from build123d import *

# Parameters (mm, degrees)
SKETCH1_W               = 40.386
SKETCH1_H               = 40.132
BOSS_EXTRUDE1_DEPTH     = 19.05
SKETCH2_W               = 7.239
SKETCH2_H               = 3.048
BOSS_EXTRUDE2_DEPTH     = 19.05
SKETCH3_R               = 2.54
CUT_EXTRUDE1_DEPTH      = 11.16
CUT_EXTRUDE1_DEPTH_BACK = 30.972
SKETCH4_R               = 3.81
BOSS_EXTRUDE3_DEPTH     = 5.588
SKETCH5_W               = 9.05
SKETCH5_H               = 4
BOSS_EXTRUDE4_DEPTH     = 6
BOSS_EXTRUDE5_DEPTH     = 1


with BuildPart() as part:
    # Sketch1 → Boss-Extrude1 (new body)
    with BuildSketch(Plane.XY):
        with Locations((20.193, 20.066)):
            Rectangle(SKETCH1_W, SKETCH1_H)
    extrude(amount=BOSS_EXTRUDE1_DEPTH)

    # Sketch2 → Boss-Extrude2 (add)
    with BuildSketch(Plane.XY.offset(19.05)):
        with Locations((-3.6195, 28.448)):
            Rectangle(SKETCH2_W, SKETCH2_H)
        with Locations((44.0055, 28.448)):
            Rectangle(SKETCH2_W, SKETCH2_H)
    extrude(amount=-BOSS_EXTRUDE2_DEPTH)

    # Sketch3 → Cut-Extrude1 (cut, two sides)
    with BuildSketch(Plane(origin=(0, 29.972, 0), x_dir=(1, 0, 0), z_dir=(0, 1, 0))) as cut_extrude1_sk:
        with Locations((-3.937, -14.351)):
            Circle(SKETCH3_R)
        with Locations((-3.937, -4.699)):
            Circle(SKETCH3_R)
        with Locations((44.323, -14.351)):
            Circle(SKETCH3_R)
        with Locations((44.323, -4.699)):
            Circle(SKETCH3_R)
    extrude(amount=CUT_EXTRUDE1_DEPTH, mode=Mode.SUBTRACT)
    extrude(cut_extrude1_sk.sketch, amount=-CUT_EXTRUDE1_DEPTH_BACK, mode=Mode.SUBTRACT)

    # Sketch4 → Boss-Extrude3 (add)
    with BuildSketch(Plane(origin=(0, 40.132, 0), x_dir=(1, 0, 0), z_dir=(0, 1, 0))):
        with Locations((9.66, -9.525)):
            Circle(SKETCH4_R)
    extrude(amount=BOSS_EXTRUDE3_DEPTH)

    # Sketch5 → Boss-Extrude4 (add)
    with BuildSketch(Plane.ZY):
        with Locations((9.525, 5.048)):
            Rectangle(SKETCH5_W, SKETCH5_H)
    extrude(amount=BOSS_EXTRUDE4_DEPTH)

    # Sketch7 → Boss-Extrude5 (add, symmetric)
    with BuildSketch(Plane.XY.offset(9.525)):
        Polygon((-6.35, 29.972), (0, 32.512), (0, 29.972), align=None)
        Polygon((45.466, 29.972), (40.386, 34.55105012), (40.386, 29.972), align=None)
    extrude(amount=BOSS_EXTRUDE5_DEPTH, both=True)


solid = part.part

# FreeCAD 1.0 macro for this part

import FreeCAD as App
import Part
import Sketcher
Q = App.Units.Quantity

doc = App.newDocument("Part")
body = doc.addObject("PartDesign::Body", "Body")

# Sketch on XY plane
sketch1 = doc.addObject("Sketcher::SketchObject", "Sketch")
body.addObject(sketch1)
sketch1.AttachmentSupport = (doc.XY_Plane, [""])
sketch1.MapMode = "FlatFace"
sketch1.addGeometry([
    Part.LineSegment(App.Vector(0, 40, 0), App.Vector(0, 0, 0)),
    Part.LineSegment(App.Vector(0, 0, 0), App.Vector(40, 0, 0)),
    Part.LineSegment(App.Vector(40, 0, 0), App.Vector(40, 40, 0)),
    Part.LineSegment(App.Vector(40, 40, 0), App.Vector(0, 40, 0)),
], False)
sketch1.addConstraint([
    Sketcher.Constraint("Coincident", 0, 2, 1, 1),
    Sketcher.Constraint("Coincident", 1, 2, 2, 1),
    Sketcher.Constraint("Coincident", 2, 2, 3, 1),
    Sketcher.Constraint("Coincident", 3, 2, 0, 1),
    Sketcher.Constraint("Vertical", 0),
    Sketcher.Constraint("Horizontal", 1),
    Sketcher.Constraint("Vertical", 2),
    Sketcher.Constraint("Horizontal", 3),
    Sketcher.Constraint("Coincident", 0, 2, -1, 1),
    Sketcher.Constraint("DistanceX", 1, 1, 1, 2, Q("1.59 in")),
    Sketcher.Constraint("DistanceY", 0, 2, 0, 1, Q("1.58 in")),
])
pad1 = doc.addObject("PartDesign::Pad", "Pad")
body.addObject(pad1)
pad1.Profile = sketch1
pad1.Length = Q("0.75 in")

# Sketch on XY plane
sketch2 = doc.addObject("Sketcher::SketchObject", "Sketch001")
body.addObject(sketch2)
sketch2.AttachmentSupport = (doc.XY_Plane, [""])
sketch2.MapMode = "FlatFace"
sketch2.AttachmentOffset = App.Placement(App.Vector(0, 0, 0.75 * 25.4), App.Rotation())
sketch2.addGeometry([
    Part.LineSegment(App.Vector(-7.2, 30, 0), App.Vector(-7.2, 26.9, 0)),  # 0
    Part.LineSegment(App.Vector(-7.2, 26.9, 0), App.Vector(0, 26.9, 0)),  # 1
    Part.LineSegment(App.Vector(0, 26.9, 0), App.Vector(0, 30, 0)),  # 2
    Part.LineSegment(App.Vector(0, 30, 0), App.Vector(-7.2, 30, 0)),  # 3
    Part.LineSegment(App.Vector(40.4, 30, 0), App.Vector(40.4, 26.9, 0)),  # 4
    Part.LineSegment(App.Vector(40.4, 26.9, 0), App.Vector(47.6, 26.9, 0)),  # 5
    Part.LineSegment(App.Vector(47.6, 26.9, 0), App.Vector(47.6, 30, 0)),  # 6
    Part.LineSegment(App.Vector(47.6, 30, 0), App.Vector(40.4, 30, 0)),  # 7
], False)
sketch2.addConstraint([
    Sketcher.Constraint("Coincident", 0, 2, 1, 1),
    Sketcher.Constraint("Coincident", 1, 2, 2, 1),
    Sketcher.Constraint("Coincident", 2, 2, 3, 1),
    Sketcher.Constraint("Coincident", 3, 2, 0, 1),
    Sketcher.Constraint("Coincident", 4, 2, 5, 1),
    Sketcher.Constraint("Coincident", 5, 2, 6, 1),
    Sketcher.Constraint("Coincident", 6, 2, 7, 1),
    Sketcher.Constraint("Coincident", 7, 2, 4, 1),
    Sketcher.Constraint("Vertical", 0),
    Sketcher.Constraint("Horizontal", 1),
    Sketcher.Constraint("Vertical", 2),
    Sketcher.Constraint("Horizontal", 3),
    Sketcher.Constraint("Vertical", 4),
    Sketcher.Constraint("Horizontal", 5),
    Sketcher.Constraint("Vertical", 6),
    Sketcher.Constraint("Horizontal", 7),
    Sketcher.Constraint("PointOnObject", 1, 2, -2),
    Sketcher.Constraint("Horizontal", 1, 2, 4, 2),
    Sketcher.Constraint("Horizontal", 3, 2, 6, 2),
    Sketcher.Constraint("Equal", 3, 5),
    Sketcher.Constraint("DistanceY", 0, 2, 0, 1, Q("0.12 in")),
    Sketcher.Constraint("DistanceX", 1, 1, 1, 2, Q("0.285 in")),
    Sketcher.Constraint("DistanceY", -1, 1, 0, 2, Q("1.06 in")),
    Sketcher.Constraint("DistanceX", -1, 1, 4, 2, Q("1.59 in")),
])
pad2 = doc.addObject("PartDesign::Pad", "Pad001")
body.addObject(pad2)
pad2.Profile = sketch2
pad2.Length = Q("0.75 in")
pad2.Reversed = True

# Sketch on XZ plane
sketch3 = doc.addObject("Sketcher::SketchObject", "Sketch002")
body.addObject(sketch3)
sketch3.AttachmentSupport = (doc.XZ_Plane, [""])
sketch3.MapMode = "FlatFace"
sketch3.AttachmentOffset = App.Placement(App.Vector(0, 0, -1.18 * 25.4), App.Rotation())
sketch3.addGeometry([
    Part.Circle(App.Vector(-3.9, 14.4, 0), App.Vector(0, 0, 1), 2.5),
    Part.Circle(App.Vector(-3.9, 4.7, 0), App.Vector(0, 0, 1), 2.5),
    Part.Circle(App.Vector(44.3, 14.4, 0), App.Vector(0, 0, 1), 2.5),
    Part.Circle(App.Vector(44.3, 4.7, 0), App.Vector(0, 0, 1), 2.5),
], False)
sketch3.addConstraint([
    Sketcher.Constraint("Equal", 0, 1),
    Sketcher.Constraint("Equal", 1, 2),
    Sketcher.Constraint("Equal", 2, 3),
    Sketcher.Constraint("Horizontal", 0, 3, 2, 3),
    Sketcher.Constraint("Horizontal", 1, 3, 3, 3),
    Sketcher.Constraint("Vertical", 0, 3, 1, 3),
    Sketcher.Constraint("Vertical", 2, 3, 3, 3),
    Sketcher.Constraint("Diameter", 0, Q("0.2 in")),
    Sketcher.Constraint("DistanceX", 0, 3, 2, 3, Q("1.9 in")),
    Sketcher.Constraint("DistanceY", 1, 3, 0, 3, Q("0.38 in")),
    Sketcher.Constraint("DistanceX", 0, 3, -1, 1, Q("0.155 in")),
    Sketcher.Constraint("DistanceY", -1, 1, 0, 3, Q("0.565 in")),
])
pocket1 = doc.addObject("PartDesign::Pocket", "Pocket")
body.addObject(pocket1)
pocket1.Profile = sketch3
pocket1.Type = "ThroughAll"
pocket1.Midplane = True

# Sketch on XZ plane
sketch4 = doc.addObject("Sketcher::SketchObject", "Sketch003")
body.addObject(sketch4)
sketch4.AttachmentSupport = (doc.XZ_Plane, [""])
sketch4.MapMode = "FlatFace"
sketch4.AttachmentOffset = App.Placement(App.Vector(0, 0, -1.58 * 25.4), App.Rotation())
sketch4.addGeometry(Part.Circle(App.Vector(9.7, 9.5, 0), App.Vector(0, 0, 1), 3.8), False)
sketch4.addConstraint([
    Sketcher.Constraint("Diameter", 0, Q("0.3 in")),
    Sketcher.Constraint("DistanceY", -1, 1, 0, 3, Q("0.375 in")),
    Sketcher.Constraint("DistanceX", -1, 1, 0, 3, Q("9.66 mm")),
])
pad3 = doc.addObject("PartDesign::Pad", "Pad002")
body.addObject(pad3)
pad3.Profile = sketch4
pad3.Length = Q("0.22 in")
pad3.Reversed = True

# Sketch on YZ plane
sketch5 = doc.addObject("Sketcher::SketchObject", "Sketch004")
body.addObject(sketch5)
sketch5.AttachmentSupport = (doc.YZ_Plane, [""])
sketch5.MapMode = "FlatFace"
sketch5.addGeometry([
    Part.LineSegment(App.Vector(7, 5, 0), App.Vector(3, 5, 0)),
    Part.LineSegment(App.Vector(3, 5, 0), App.Vector(3, 14.1, 0)),
    Part.LineSegment(App.Vector(3, 14.1, 0), App.Vector(7, 14.1, 0)),
    Part.LineSegment(App.Vector(7, 14.1, 0), App.Vector(7, 5, 0)),
], False)
sketch5.addConstraint([
    Sketcher.Constraint("Coincident", 0, 2, 1, 1),
    Sketcher.Constraint("Coincident", 1, 2, 2, 1),
    Sketcher.Constraint("Coincident", 2, 2, 3, 1),
    Sketcher.Constraint("Coincident", 3, 2, 0, 1),
    Sketcher.Constraint("Horizontal", 0),
    Sketcher.Constraint("Vertical", 1),
    Sketcher.Constraint("Horizontal", 2),
    Sketcher.Constraint("Vertical", 3),
    Sketcher.Constraint("DistanceX", -1, 1, 0, 2, Q("0.12 in")),
    Sketcher.Constraint("DistanceX", 0, 2, 0, 1, Q("4 mm")),
    Sketcher.Constraint("DistanceY", 1, 1, 1, 2, Q("9.05 mm")),
    Sketcher.Constraint("DistanceY", -1, 1, 0, 2, Q("5 mm")),
])
pad4 = doc.addObject("PartDesign::Pad", "Pad003")
body.addObject(pad4)
pad4.Profile = sketch5
pad4.Length = 6
pad4.Reversed = True

# Sketch on XY plane
sketch6 = doc.addObject("Sketcher::SketchObject", "Sketch005")
body.addObject(sketch6)
sketch6.AttachmentSupport = (doc.XY_Plane, [""])
sketch6.MapMode = "FlatFace"
sketch6.AttachmentOffset = App.Placement(App.Vector(0, 0, 0.375 * 25.4), App.Rotation())
sketch6.addGeometry([
    Part.LineSegment(App.Vector(0, 32.5, 0), App.Vector(-6.3, 30, 0)),  # 0
    Part.LineSegment(App.Vector(-6.3, 30, 0), App.Vector(0, 30, 0)),  # 1
    Part.LineSegment(App.Vector(0, 30, 0), App.Vector(0, 32.5, 0)),  # 2
    Part.LineSegment(App.Vector(45.5, 30, 0), App.Vector(40.4, 34.6, 0)),  # 3
    Part.LineSegment(App.Vector(40.4, 34.6, 0), App.Vector(40.4, 30, 0)),  # 4
    Part.LineSegment(App.Vector(40.4, 30, 0), App.Vector(45.5, 30, 0)),  # 5
], False)
sketch6.addConstraint([
    Sketcher.Constraint("Coincident", 0, 2, 1, 1),
    Sketcher.Constraint("Coincident", 1, 2, 2, 1),
    Sketcher.Constraint("Coincident", 2, 2, 0, 1),
    Sketcher.Constraint("Coincident", 3, 2, 4, 1),
    Sketcher.Constraint("Coincident", 4, 2, 5, 1),
    Sketcher.Constraint("Coincident", 5, 2, 3, 1),
    Sketcher.Constraint("Horizontal", 1),
    Sketcher.Constraint("Vertical", 2),
    Sketcher.Constraint("Vertical", 4),
    Sketcher.Constraint("Horizontal", 5),
    Sketcher.Constraint("PointOnObject", 1, 2, -2),
    Sketcher.Constraint("Horizontal", 1, 2, 4, 2),
    Sketcher.Constraint("Equal", 0, 3),
    Sketcher.Constraint("DistanceX", 5, 1, 5, 2, Q("0.2 in")),
    Sketcher.Constraint("DistanceY", 2, 1, 2, 2, Q("0.1 in")),
    Sketcher.Constraint("DistanceX", 1, 1, 1, 2, Q("0.25 in")),
    Sketcher.Constraint("DistanceY", -1, 1, 0, 2, Q("1.18 in")),
    Sketcher.Constraint("DistanceX", -1, 1, 3, 2, Q("1.59 in")),
])
pad5 = doc.addObject("PartDesign::Pad", "Pad004")
body.addObject(pad5)
pad5.Profile = sketch6
pad5.Length = 2
pad5.Midplane = True

doc.recompute()
